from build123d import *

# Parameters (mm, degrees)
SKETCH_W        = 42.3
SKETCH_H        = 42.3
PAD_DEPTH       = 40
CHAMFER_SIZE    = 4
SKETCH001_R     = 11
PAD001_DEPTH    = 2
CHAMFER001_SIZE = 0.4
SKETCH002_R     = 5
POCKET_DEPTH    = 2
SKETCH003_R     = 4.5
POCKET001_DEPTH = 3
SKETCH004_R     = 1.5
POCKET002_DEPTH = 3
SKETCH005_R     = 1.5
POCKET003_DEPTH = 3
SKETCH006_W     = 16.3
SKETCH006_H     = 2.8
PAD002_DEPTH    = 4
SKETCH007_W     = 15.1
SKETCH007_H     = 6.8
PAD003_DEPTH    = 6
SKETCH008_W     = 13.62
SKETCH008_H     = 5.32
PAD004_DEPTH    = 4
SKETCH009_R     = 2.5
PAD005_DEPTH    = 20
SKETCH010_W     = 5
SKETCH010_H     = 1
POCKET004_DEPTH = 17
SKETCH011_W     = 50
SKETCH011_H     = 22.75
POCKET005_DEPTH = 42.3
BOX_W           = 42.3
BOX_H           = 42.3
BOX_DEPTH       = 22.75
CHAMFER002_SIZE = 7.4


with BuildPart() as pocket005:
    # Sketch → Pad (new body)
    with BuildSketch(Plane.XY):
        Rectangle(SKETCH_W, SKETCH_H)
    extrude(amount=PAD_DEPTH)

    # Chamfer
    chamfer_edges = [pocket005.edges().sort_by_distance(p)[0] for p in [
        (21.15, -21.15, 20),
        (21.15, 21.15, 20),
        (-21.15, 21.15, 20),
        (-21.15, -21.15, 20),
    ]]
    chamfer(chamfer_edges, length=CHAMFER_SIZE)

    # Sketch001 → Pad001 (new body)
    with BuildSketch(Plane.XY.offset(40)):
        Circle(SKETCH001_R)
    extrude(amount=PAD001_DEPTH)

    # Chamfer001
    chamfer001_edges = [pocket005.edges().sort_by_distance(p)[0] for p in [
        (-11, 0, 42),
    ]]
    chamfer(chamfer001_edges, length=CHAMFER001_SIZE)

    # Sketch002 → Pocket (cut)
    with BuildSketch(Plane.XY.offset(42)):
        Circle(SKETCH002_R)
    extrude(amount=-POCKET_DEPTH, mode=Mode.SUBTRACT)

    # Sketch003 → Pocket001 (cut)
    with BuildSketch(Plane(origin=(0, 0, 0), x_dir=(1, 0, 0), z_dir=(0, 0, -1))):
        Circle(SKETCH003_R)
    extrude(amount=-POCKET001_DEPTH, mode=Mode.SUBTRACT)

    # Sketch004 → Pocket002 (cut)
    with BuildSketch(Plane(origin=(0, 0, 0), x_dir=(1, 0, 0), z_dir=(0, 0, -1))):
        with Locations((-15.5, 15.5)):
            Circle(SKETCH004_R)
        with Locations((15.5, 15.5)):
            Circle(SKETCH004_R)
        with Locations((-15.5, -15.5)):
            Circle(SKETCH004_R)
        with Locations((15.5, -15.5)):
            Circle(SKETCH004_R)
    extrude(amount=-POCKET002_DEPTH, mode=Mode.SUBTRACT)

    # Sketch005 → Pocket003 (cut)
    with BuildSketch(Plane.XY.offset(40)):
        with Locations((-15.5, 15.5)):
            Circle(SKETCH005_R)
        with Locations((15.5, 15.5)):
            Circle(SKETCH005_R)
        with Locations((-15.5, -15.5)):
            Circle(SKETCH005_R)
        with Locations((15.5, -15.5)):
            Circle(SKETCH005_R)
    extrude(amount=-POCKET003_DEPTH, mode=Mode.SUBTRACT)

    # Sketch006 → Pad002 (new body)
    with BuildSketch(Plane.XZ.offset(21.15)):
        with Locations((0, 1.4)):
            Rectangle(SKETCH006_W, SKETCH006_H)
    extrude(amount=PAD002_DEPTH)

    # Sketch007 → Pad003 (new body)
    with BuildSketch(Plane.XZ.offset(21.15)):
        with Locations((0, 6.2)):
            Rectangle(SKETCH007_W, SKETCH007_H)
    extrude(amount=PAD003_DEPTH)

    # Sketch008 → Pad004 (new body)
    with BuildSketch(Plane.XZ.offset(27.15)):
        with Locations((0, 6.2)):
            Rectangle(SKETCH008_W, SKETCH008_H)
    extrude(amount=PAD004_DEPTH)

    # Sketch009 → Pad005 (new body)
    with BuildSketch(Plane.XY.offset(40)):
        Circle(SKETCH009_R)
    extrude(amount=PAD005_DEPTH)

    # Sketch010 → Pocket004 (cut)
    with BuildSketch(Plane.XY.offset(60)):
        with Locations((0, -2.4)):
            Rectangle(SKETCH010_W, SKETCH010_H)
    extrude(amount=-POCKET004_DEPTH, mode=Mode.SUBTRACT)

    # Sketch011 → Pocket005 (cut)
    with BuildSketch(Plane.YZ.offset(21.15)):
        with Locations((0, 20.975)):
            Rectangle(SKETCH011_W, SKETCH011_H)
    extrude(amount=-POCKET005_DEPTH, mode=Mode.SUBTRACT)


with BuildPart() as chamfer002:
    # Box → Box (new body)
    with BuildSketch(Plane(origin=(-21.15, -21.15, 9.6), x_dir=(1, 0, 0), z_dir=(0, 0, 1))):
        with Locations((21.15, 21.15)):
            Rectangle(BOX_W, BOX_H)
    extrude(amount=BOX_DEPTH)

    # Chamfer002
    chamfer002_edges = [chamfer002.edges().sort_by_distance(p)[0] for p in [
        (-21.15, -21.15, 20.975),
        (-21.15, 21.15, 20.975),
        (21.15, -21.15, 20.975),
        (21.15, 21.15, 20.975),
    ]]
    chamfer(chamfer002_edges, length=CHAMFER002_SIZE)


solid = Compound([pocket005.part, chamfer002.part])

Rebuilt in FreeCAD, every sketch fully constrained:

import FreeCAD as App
import Part
import Sketcher

V = App.Vector
Q = App.Units.Quantity


def edges_at(feature, points):
    """Names of the edges that pass closest to the given points."""
    edges = feature.Shape.Edges
    near = lambda p: min(range(len(edges)), key=lambda i: edges[i].distToShape(Part.Vertex(*p))[0])
    return sorted({f"Edge{near(p) + 1}" for p in points})

doc = App.newDocument("Part")
body = doc.addObject("PartDesign::Body", "Body")
body.AllowCompound = True

sketch1 = body.newObject("Sketcher::SketchObject", "Sketch")
sketch1.AttachmentSupport = (doc.getObject("XY_Plane"), [""])
sketch1.MapMode = "FlatFace"
sketch1.addGeometry(Part.LineSegment(V(-21, 21, 0), V(-21, -21, 0)), False)
sketch1.addGeometry(Part.LineSegment(V(-21, -21, 0), V(21, -21, 0)), False)
sketch1.addGeometry(Part.LineSegment(V(21, -21, 0), V(21, 21, 0)), False)
sketch1.addGeometry(Part.LineSegment(V(21, 21, 0), V(-21, 21, 0)), False)
sketch1.addConstraint(Sketcher.Constraint("Coincident", 0, 2, 1, 1))
sketch1.addConstraint(Sketcher.Constraint("Coincident", 1, 2, 2, 1))
sketch1.addConstraint(Sketcher.Constraint("Coincident", 2, 2, 3, 1))
sketch1.addConstraint(Sketcher.Constraint("Coincident", 3, 2, 0, 1))
sketch1.addConstraint(Sketcher.Constraint("Vertical", 0))
sketch1.addConstraint(Sketcher.Constraint("Horizontal", 1))
sketch1.addConstraint(Sketcher.Constraint("Vertical", 2))
sketch1.addConstraint(Sketcher.Constraint("Horizontal", 3))
sketch1.addConstraint(Sketcher.Constraint("Symmetric", 0, 2, 2, 2, -1, 1))
sketch1.addConstraint(Sketcher.Constraint("Equal", 3, 0))
sketch1.addConstraint(Sketcher.Constraint("DistanceX", 1, 1, 1, 2, Q("42.3 mm")))
pad1 = body.newObject("PartDesign::Pad", "Pad")
pad1.Profile = sketch1
pad1.Length = 40
doc.recompute()

chamfer = body.newObject("PartDesign::Chamfer", "Chamfer")
chamfer.Base = (pad1, edges_at(pad1, [
    (21.15, -21.15, 20),
    (21.15, 21.15, 20),
    (-21.15, 21.15, 20),
    (-21.15, -21.15, 20),
]))
chamfer.Size = 4

sketch2 = body.newObject("Sketcher::SketchObject", "Sketch001")
sketch2.AttachmentSupport = (doc.getObject("XY_Plane"), [""])
sketch2.MapMode = "FlatFace"
sketch2.AttachmentOffset = App.Placement(V(0, 0, 40), App.Rotation())
sketch2.addGeometry(Part.Circle(V(0, 0, 0), V(0, 0, 1), 11), False)
sketch2.addConstraint(Sketcher.Constraint("Coincident", 0, 3, -1, 1))
sketch2.addConstraint(Sketcher.Constraint("Diameter", 0, Q("22 mm")))
pad2 = body.newObject("PartDesign::Pad", "Pad001")
pad2.Profile = sketch2
pad2.Length = 2
doc.recompute()

chamfer2 = body.newObject("PartDesign::Chamfer", "Chamfer001")
chamfer2.Base = (pad2, edges_at(pad2, [(-11, 0, 42)]))
chamfer2.Size = 0.4

sketch3 = body.newObject("Sketcher::SketchObject", "Sketch002")
sketch3.AttachmentSupport = (doc.getObject("XY_Plane"), [""])
sketch3.MapMode = "FlatFace"
sketch3.AttachmentOffset = App.Placement(V(0, 0, 42), App.Rotation())
sketch3.addGeometry(Part.Circle(V(0, 0, 0), V(0, 0, 1), 5), False)
sketch3.addConstraint(Sketcher.Constraint("Coincident", 0, 3, -1, 1))
sketch3.addConstraint(Sketcher.Constraint("Diameter", 0, Q("10 mm")))
pocket1 = body.newObject("PartDesign::Pocket", "Pocket")
pocket1.Profile = sketch3
pocket1.Length = 2

sketch4 = body.newObject("Sketcher::SketchObject", "Sketch003")
sketch4.AttachmentSupport = (doc.getObject("XY_Plane"), [""])
sketch4.MapMode = "FlatFace"
sketch4.addGeometry(Part.Circle(V(0, 0, 0), V(0, 0, 1), 4.5), False)
sketch4.addConstraint(Sketcher.Constraint("Coincident", 0, 3, -1, 1))
sketch4.addConstraint(Sketcher.Constraint("Diameter", 0, Q("9 mm")))
pocket2 = body.newObject("PartDesign::Pocket", "Pocket001")
pocket2.Profile = sketch4
pocket2.Length = 3
pocket2.Reversed = True

sketch5 = body.newObject("Sketcher::SketchObject", "Sketch004")
sketch5.AttachmentSupport = (doc.getObject("XY_Plane"), [""])
sketch5.MapMode = "FlatFace"
sketch5.addGeometry(Part.Circle(V(-15.5, -15.5, 0), V(0, 0, 1), 1.5), False)
sketch5.addGeometry(Part.Circle(V(15.5, -15.5, 0), V(0, 0, 1), 1.5), False)
sketch5.addGeometry(Part.Circle(V(-15.5, 15.5, 0), V(0, 0, 1), 1.5), False)
sketch5.addGeometry(Part.Circle(V(15.5, 15.5, 0), V(0, 0, 1), 1.5), False)
sketch5.addConstraint(Sketcher.Constraint("Equal", 0, 1))
sketch5.addConstraint(Sketcher.Constraint("Equal", 1, 2))
sketch5.addConstraint(Sketcher.Constraint("Equal", 2, 3))
sketch5.addConstraint(Sketcher.Constraint("Symmetric", 1, 3, 2, 3, -1, 1))
sketch5.addConstraint(Sketcher.Constraint("Symmetric", 0, 3, 3, 3, -1, 1))
sketch5.addConstraint(Sketcher.Constraint("Symmetric", 0, 3, 1, 3, -2))
sketch5.addConstraint(Sketcher.Constraint("Diameter", 0, Q("3 mm")))
sketch5.addConstraint(Sketcher.Constraint("DistanceX", 0, 3, 1, 3, Q("31 mm")))
sketch5.addConstraint(Sketcher.Constraint("DistanceY", 0, 3, 2, 3, Q("31 mm")))
pocket3 = body.newObject("PartDesign::Pocket", "Pocket002")
pocket3.Profile = sketch5
pocket3.Length = 3
pocket3.Reversed = True

sketch6 = body.newObject("Sketcher::SketchObject", "Sketch005")
sketch6.AttachmentSupport = (doc.getObject("XY_Plane"), [""])
sketch6.MapMode = "FlatFace"
sketch6.AttachmentOffset = App.Placement(V(0, 0, 40), App.Rotation())
sketch6.addGeometry(Part.Circle(V(-15.5, 15.5, 0), V(0, 0, 1), 1.5), False)
sketch6.addGeometry(Part.Circle(V(15.5, 15.5, 0), V(0, 0, 1), 1.5), False)
sketch6.addGeometry(Part.Circle(V(-15.5, -15.5, 0), V(0, 0, 1), 1.5), False)
sketch6.addGeometry(Part.Circle(V(15.5, -15.5, 0), V(0, 0, 1), 1.5), False)
sketch6.addConstraint(Sketcher.Constraint("Equal", 0, 1))
sketch6.addConstraint(Sketcher.Constraint("Equal", 1, 2))
sketch6.addConstraint(Sketcher.Constraint("Equal", 2, 3))
sketch6.addConstraint(Sketcher.Constraint("Symmetric", 1, 3, 2, 3, -1, 1))
sketch6.addConstraint(Sketcher.Constraint("Symmetric", 0, 3, 3, 3, -1, 1))
sketch6.addConstraint(Sketcher.Constraint("Symmetric", 0, 3, 1, 3, -2))
sketch6.addConstraint(Sketcher.Constraint("Diameter", 0, Q("3 mm")))
sketch6.addConstraint(Sketcher.Constraint("DistanceX", 0, 3, 1, 3, Q("31 mm")))
sketch6.addConstraint(Sketcher.Constraint("DistanceY", 2, 3, 0, 3, Q("31 mm")))
pocket4 = body.newObject("PartDesign::Pocket", "Pocket003")
pocket4.Profile = sketch6
pocket4.Length = 3

sketch7 = body.newObject("Sketcher::SketchObject", "Sketch006")
sketch7.AttachmentSupport = (doc.getObject("XZ_Plane"), [""])
sketch7.MapMode = "FlatFace"
sketch7.AttachmentOffset = App.Placement(V(0, 0, 21.15), App.Rotation())
sketch7.addGeometry(Part.LineSegment(V(-8.2, 2.8, 0), V(-8.2, 0, 0)), False)
sketch7.addGeometry(Part.LineSegment(V(-8.2, 0, 0), V(8.2, 0, 0)), False)
sketch7.addGeometry(Part.LineSegment(V(8.2, 0, 0), V(8.2, 2.8, 0)), False)
sketch7.addGeometry(Part.LineSegment(V(8.2, 2.8, 0), V(-8.2, 2.8, 0)), False)
sketch7.addConstraint(Sketcher.Constraint("Coincident", 0, 2, 1, 1))
sketch7.addConstraint(Sketcher.Constraint("Coincident", 1, 2, 2, 1))
sketch7.addConstraint(Sketcher.Constraint("Coincident", 2, 2, 3, 1))
sketch7.addConstraint(Sketcher.Constraint("Coincident", 3, 2, 0, 1))
sketch7.addConstraint(Sketcher.Constraint("Vertical", 0))
sketch7.addConstraint(Sketcher.Constraint("Horizontal", 1))
sketch7.addConstraint(Sketcher.Constraint("Vertical", 2))
sketch7.addConstraint(Sketcher.Constraint("Horizontal", 3))
sketch7.addConstraint(Sketcher.Constraint("Symmetric", 0, 2, 1, 2, -1, 1))
sketch7.addConstraint(Sketcher.Constraint("DistanceX", 1, 1, 1, 2, Q("16.3 mm")))
sketch7.addConstraint(Sketcher.Constraint("DistanceY", 0, 2, 0, 1, Q("2.8 mm")))
pad3 = body.newObject("PartDesign::Pad", "Pad002")
pad3.Profile = sketch7
pad3.Length = 4

sketch8 = body.newObject("Sketcher::SketchObject", "Sketch007")
sketch8.AttachmentSupport = (doc.getObject("XZ_Plane"), [""])
sketch8.MapMode = "FlatFace"
sketch8.AttachmentOffset = App.Placement(V(0, 0, 21.15), App.Rotation())
sketch8.addGeometry(Part.LineSegment(V(-8, 10, 0), V(-8, 3, 0)), False)
sketch8.addGeometry(Part.LineSegment(V(-8, 3, 0), V(8, 3, 0)), False)
sketch8.addGeometry(Part.LineSegment(V(8, 3, 0), V(8, 10, 0)), False)
sketch8.addGeometry(Part.LineSegment(V(8, 10, 0), V(-8, 10, 0)), False)
sketch8.addConstraint(Sketcher.Constraint("Coincident", 0, 2, 1, 1))
sketch8.addConstraint(Sketcher.Constraint("Coincident", 1, 2, 2, 1))
sketch8.addConstraint(Sketcher.Constraint("Coincident", 2, 2, 3, 1))
sketch8.addConstraint(Sketcher.Constraint("Coincident", 3, 2, 0, 1))
sketch8.addConstraint(Sketcher.Constraint("Vertical", 0))
sketch8.addConstraint(Sketcher.Constraint("Horizontal", 1))
sketch8.addConstraint(Sketcher.Constraint("Vertical", 2))
sketch8.addConstraint(Sketcher.Constraint("Horizontal", 3))
sketch8.addConstraint(Sketcher.Constraint("DistanceX", 1, 1, 1, 2, Q("15.1 mm")))
sketch8.addConstraint(Sketcher.Constraint("DistanceY", 0, 2, 0, 1, Q("6.8 mm")))
sketch8.addConstraint(Sketcher.Constraint("DistanceY", -1, 1, 0, 2, Q("2.8 mm")))
sketch8.addConstraint(Sketcher.Constraint("DistanceX", 0, 2, -1, 1, Q("7.55 mm")))
pad4 = body.newObject("PartDesign::Pad", "Pad003")
pad4.Profile = sketch8
pad4.Length = 6

sketch9 = body.newObject("Sketcher::SketchObject", "Sketch008")
sketch9.AttachmentSupport = (doc.getObject("XZ_Plane"), [""])
sketch9.MapMode = "FlatFace"
sketch9.AttachmentOffset = App.Placement(V(0, 0, 27.15), App.Rotation())
sketch9.addGeometry(Part.LineSegment(V(-7, 9, 0), V(-7, 4, 0)), False)
sketch9.addGeometry(Part.LineSegment(V(-7, 4, 0), V(7, 4, 0)), False)
sketch9.addGeometry(Part.LineSegment(V(7, 4, 0), V(7, 9, 0)), False)
sketch9.addGeometry(Part.LineSegment(V(7, 9, 0), V(-7, 9, 0)), False)
sketch9.addConstraint(Sketcher.Constraint("Coincident", 0, 2, 1, 1))
sketch9.addConstraint(Sketcher.Constraint("Coincident", 1, 2, 2, 1))
sketch9.addConstraint(Sketcher.Constraint("Coincident", 2, 2, 3, 1))
sketch9.addConstraint(Sketcher.Constraint("Coincident", 3, 2, 0, 1))
sketch9.addConstraint(Sketcher.Constraint("Vertical", 0))
sketch9.addConstraint(Sketcher.Constraint("Horizontal", 1))
sketch9.addConstraint(Sketcher.Constraint("Vertical", 2))
sketch9.addConstraint(Sketcher.Constraint("Horizontal", 3))
sketch9.addConstraint(Sketcher.Constraint("DistanceX", 1, 1, 1, 2, Q("13.62 mm")))
sketch9.addConstraint(Sketcher.Constraint("DistanceY", 0, 2, 0, 1, Q("5.32 mm")))
sketch9.addConstraint(Sketcher.Constraint("DistanceX", 0, 2, -1, 1, Q("6.81 mm")))
sketch9.addConstraint(Sketcher.Constraint("DistanceY", -1, 1, 0, 2, Q("3.54 mm")))
pad5 = body.newObject("PartDesign::Pad", "Pad004")
pad5.Profile = sketch9
pad5.Length = 4

sketch10 = body.newObject("Sketcher::SketchObject", "Sketch009")
sketch10.AttachmentSupport = (doc.getObject("XY_Plane"), [""])
sketch10.MapMode = "FlatFace"
sketch10.AttachmentOffset = App.Placement(V(0, 0, 40), App.Rotation())
sketch10.addGeometry(Part.Circle(V(0, 0, 0), V(0, 0, 1), 2.5), False)
sketch10.addConstraint(Sketcher.Constraint("Coincident", 0, 3, -1, 1))
sketch10.addConstraint(Sketcher.Constraint("Diameter", 0, Q("5 mm")))
pad6 = body.newObject("PartDesign::Pad", "Pad005")
pad6.Profile = sketch10
pad6.Length = 20

sketch11 = body.newObject("Sketcher::SketchObject", "Sketch010")
sketch11.AttachmentSupport = (doc.getObject("XY_Plane"), [""])
sketch11.MapMode = "FlatFace"
sketch11.AttachmentOffset = App.Placement(V(0, 0, 60), App.Rotation())
sketch11.addGeometry(Part.LineSegment(V(-2.5, -1.9, 0), V(-2.5, -2.9, 0)), False)
sketch11.addGeometry(Part.LineSegment(V(-2.5, -2.9, 0), V(2.5, -2.9, 0)), False)
sketch11.addGeometry(Part.LineSegment(V(2.5, -2.9, 0), V(2.5, -1.9, 0)), False)
sketch11.addGeometry(Part.LineSegment(V(2.5, -1.9, 0), V(-2.5, -1.9, 0)), False)
sketch11.addConstraint(Sketcher.Constraint("Coincident", 0, 2, 1, 1))
sketch11.addConstraint(Sketcher.Constraint("Coincident", 1, 2, 2, 1))
sketch11.addConstraint(Sketcher.Constraint("Coincident", 2, 2, 3, 1))
sketch11.addConstraint(Sketcher.Constraint("Coincident", 3, 2, 0, 1))
sketch11.addConstraint(Sketcher.Constraint("Vertical", 0))
sketch11.addConstraint(Sketcher.Constraint("Horizontal", 1))
sketch11.addConstraint(Sketcher.Constraint("Vertical", 2))
sketch11.addConstraint(Sketcher.Constraint("Horizontal", 3))
sketch11.addConstraint(Sketcher.Constraint("DistanceX", 1, 1, 1, 2, Q("5 mm")))
sketch11.addConstraint(Sketcher.Constraint("DistanceY", 0, 2, 0, 1, Q("1 mm")))
sketch11.addConstraint(Sketcher.Constraint("DistanceX", 0, 2, -1, 1, Q("2.5 mm")))
sketch11.addConstraint(Sketcher.Constraint("DistanceY", 0, 2, -1, 1, Q("2.9 mm")))
pocket5 = body.newObject("PartDesign::Pocket", "Pocket004")
pocket5.Profile = sketch11
pocket5.Length = 17

sketch12 = body.newObject("Sketcher::SketchObject", "Sketch011")
sketch12.AttachmentSupport = (doc.getObject("YZ_Plane"), [""])
sketch12.MapMode = "FlatFace"
sketch12.AttachmentOffset = App.Placement(V(0, 0, 21.15), App.Rotation())
sketch12.addGeometry(Part.LineSegment(V(-25, 32, 0), V(-25, 10, 0)), False)
sketch12.addGeometry(Part.LineSegment(V(-25, 10, 0), V(25, 10, 0)), False)
sketch12.addGeometry(Part.LineSegment(V(25, 10, 0), V(25, 32, 0)), False)
sketch12.addGeometry(Part.LineSegment(V(25, 32, 0), V(-25, 32, 0)), False)
sketch12.addConstraint(Sketcher.Constraint("Coincident", 0, 2, 1, 1))
sketch12.addConstraint(Sketcher.Constraint("Coincident", 1, 2, 2, 1))
sketch12.addConstraint(Sketcher.Constraint("Coincident", 2, 2, 3, 1))
sketch12.addConstraint(Sketcher.Constraint("Coincident", 3, 2, 0, 1))
sketch12.addConstraint(Sketcher.Constraint("Vertical", 0))
sketch12.addConstraint(Sketcher.Constraint("Horizontal", 1))
sketch12.addConstraint(Sketcher.Constraint("Vertical", 2))
sketch12.addConstraint(Sketcher.Constraint("Horizontal", 3))
sketch12.addConstraint(Sketcher.Constraint("DistanceX", 1, 1, 1, 2, Q("50 mm")))
sketch12.addConstraint(Sketcher.Constraint("DistanceX", 0, 2, -1, 1, Q("25 mm")))
sketch12.addConstraint(Sketcher.Constraint("DistanceY", 0, 2, 0, 1, Q("22.75 mm")))
sketch12.addConstraint(Sketcher.Constraint("DistanceY", -1, 1, 0, 2, Q("9.6 mm")))
pocket6 = body.newObject("PartDesign::Pocket", "Pocket005")
pocket6.Profile = sketch12
pocket6.Length = 42.3
body2 = doc.addObject("PartDesign::Body", "Body001")

sketch13 = body2.newObject("Sketcher::SketchObject", "Sketch012")
sketch13.AttachmentSupport = (doc.getObject("XY_Plane001"), [""])
sketch13.MapMode = "FlatFace"
sketch13.AttachmentOffset = App.Placement(V(0, 0, 9.6), App.Rotation())
sketch13.addGeometry(Part.LineSegment(V(-21, 21, 0), V(-21, -21, 0)), False)
sketch13.addGeometry(Part.LineSegment(V(-21, -21, 0), V(21, -21, 0)), False)
sketch13.addGeometry(Part.LineSegment(V(21, -21, 0), V(21, 21, 0)), False)
sketch13.addGeometry(Part.LineSegment(V(21, 21, 0), V(-21, 21, 0)), False)
sketch13.addConstraint(Sketcher.Constraint("Coincident", 0, 2, 1, 1))
sketch13.addConstraint(Sketcher.Constraint("Coincident", 1, 2, 2, 1))
sketch13.addConstraint(Sketcher.Constraint("Coincident", 2, 2, 3, 1))
sketch13.addConstraint(Sketcher.Constraint("Coincident", 3, 2, 0, 1))
sketch13.addConstraint(Sketcher.Constraint("Vertical", 0))
sketch13.addConstraint(Sketcher.Constraint("Horizontal", 1))
sketch13.addConstraint(Sketcher.Constraint("Vertical", 2))
sketch13.addConstraint(Sketcher.Constraint("Horizontal", 3))
sketch13.addConstraint(Sketcher.Constraint("Symmetric", 0, 2, 2, 2, -1, 1))
sketch13.addConstraint(Sketcher.Constraint("Equal", 3, 0))
sketch13.addConstraint(Sketcher.Constraint("DistanceX", 1, 1, 1, 2, Q("42.3 mm")))
pad7 = body2.newObject("PartDesign::Pad", "Pad006")
pad7.Profile = sketch13
pad7.Length = 22.75
doc.recompute()

chamfer3 = body2.newObject("PartDesign::Chamfer", "Chamfer002")
chamfer3.Base = (pad7, edges_at(pad7, [
    (-21.15, -21.15, 20.975),
    (-21.15, 21.15, 20.975),
    (21.15, -21.15, 20.975),
    (21.15, 21.15, 20.975),
]))
chamfer3.Size = 7.4

doc.recompute()
